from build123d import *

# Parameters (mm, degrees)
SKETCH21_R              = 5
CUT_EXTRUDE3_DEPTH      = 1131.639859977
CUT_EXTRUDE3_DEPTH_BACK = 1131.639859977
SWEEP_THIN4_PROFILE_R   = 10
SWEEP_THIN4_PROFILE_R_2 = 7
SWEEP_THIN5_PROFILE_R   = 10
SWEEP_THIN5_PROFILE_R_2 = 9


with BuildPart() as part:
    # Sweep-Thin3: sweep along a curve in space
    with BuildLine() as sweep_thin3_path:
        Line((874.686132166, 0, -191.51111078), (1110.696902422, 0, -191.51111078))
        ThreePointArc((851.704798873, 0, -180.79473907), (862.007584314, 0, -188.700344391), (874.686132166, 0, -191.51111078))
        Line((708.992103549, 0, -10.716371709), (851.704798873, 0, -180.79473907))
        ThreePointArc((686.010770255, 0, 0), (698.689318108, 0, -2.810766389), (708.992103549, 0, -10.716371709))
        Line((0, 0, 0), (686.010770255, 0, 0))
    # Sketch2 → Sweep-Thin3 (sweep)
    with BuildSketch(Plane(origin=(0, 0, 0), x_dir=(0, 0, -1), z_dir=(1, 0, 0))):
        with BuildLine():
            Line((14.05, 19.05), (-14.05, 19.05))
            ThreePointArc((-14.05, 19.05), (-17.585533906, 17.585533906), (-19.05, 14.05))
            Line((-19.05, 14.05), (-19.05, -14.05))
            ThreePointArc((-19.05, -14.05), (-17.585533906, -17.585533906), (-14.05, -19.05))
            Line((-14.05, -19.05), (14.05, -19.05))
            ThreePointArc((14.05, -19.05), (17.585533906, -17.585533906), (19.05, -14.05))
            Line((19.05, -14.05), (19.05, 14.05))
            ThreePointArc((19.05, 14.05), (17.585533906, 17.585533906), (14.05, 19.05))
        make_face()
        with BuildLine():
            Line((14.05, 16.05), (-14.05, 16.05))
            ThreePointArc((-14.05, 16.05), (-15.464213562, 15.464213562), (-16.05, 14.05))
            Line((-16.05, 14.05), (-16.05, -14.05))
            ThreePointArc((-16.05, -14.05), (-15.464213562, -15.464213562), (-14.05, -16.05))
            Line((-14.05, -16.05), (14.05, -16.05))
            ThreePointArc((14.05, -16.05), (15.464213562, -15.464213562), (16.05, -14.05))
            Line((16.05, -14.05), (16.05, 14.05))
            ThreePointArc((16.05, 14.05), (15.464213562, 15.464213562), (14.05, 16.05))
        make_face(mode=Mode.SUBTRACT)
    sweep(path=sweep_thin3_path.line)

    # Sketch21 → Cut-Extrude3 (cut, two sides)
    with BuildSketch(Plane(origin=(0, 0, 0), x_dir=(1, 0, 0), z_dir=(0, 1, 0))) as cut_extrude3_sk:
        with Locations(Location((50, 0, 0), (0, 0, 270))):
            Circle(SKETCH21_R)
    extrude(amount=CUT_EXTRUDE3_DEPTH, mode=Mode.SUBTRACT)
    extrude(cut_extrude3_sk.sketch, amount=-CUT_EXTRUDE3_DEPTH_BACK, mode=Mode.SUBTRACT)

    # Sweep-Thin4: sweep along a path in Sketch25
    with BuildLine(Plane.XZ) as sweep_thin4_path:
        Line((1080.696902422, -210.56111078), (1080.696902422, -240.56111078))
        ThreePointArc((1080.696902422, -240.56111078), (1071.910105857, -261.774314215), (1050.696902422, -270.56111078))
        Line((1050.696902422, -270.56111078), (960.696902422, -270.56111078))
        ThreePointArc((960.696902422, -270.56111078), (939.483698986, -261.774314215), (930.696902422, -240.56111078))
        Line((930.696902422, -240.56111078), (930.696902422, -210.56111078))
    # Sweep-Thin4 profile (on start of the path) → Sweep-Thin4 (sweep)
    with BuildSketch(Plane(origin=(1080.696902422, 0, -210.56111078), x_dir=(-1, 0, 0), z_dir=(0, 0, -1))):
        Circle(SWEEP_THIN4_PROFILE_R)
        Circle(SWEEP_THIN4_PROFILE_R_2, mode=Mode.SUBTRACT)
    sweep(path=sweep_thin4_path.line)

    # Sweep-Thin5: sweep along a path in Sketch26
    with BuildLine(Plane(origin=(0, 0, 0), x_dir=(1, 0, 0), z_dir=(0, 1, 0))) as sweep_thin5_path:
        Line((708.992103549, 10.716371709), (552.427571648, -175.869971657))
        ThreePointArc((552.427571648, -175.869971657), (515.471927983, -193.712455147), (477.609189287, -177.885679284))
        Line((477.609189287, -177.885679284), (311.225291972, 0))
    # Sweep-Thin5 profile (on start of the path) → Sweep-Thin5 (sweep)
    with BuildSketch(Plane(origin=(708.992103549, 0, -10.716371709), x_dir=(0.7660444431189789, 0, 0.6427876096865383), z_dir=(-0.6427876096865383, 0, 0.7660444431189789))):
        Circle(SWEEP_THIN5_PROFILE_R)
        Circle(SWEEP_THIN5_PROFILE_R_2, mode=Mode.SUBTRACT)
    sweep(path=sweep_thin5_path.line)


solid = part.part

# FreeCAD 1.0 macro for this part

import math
import FreeCAD as App
import Part
import Sketcher

V = App.Vector
Q = App.Units.Quantity

doc = App.newDocument("Part")
body = doc.addObject("PartDesign::Body", "Body")

# Sketch on YZ plane
sketch1 = doc.addObject("Sketcher::SketchObject", "Sketch")
body.addObject(sketch1)
sketch1.AttachmentSupport = (doc.YZ_Plane, [""])
sketch1.MapMode = "FlatFace"
sketch1.addGeometry(Part.LineSegment(V(19.1, -14.1, 0), V(19.1, 14.1, 0)), False)
sketch1.addGeometry(Part.ArcOfCircle(Part.Circle(V(14.1, 14.1, 0), V(0, 0, 1), 5), math.radians(0), math.radians(90)), False)
sketch1.addGeometry(Part.LineSegment(V(14.1, 19.1, 0), V(-14.1, 19.1, 0)), False)
sketch1.addGeometry(Part.ArcOfCircle(Part.Circle(V(-14.1, 14.1, 0), V(0, 0, 1), 5), math.radians(90), math.radians(180)), False)
sketch1.addGeometry(Part.LineSegment(V(-19.1, 14.1, 0), V(-19.1, -14.1, 0)), False)
sketch1.addGeometry(Part.ArcOfCircle(Part.Circle(V(-14.1, -14.1, 0), V(0, 0, 1), 5), math.radians(180), math.radians(270)), False)
sketch1.addGeometry(Part.LineSegment(V(-14.1, -19.1, 0), V(14.1, -19.1, 0)), False)
sketch1.addGeometry(Part.ArcOfCircle(Part.Circle(V(14.1, -14.1, 0), V(0, 0, 1), 5), math.radians(-90), math.radians(0)), False)
sketch1.addGeometry(Part.LineSegment(V(16.1, 14.1, 0), V(16.1, -14.1, 0)), False)
sketch1.addGeometry(Part.ArcOfCircle(Part.Circle(V(14, -14, 0), V(0, 0, 1), 2), math.radians(-90), math.radians(0)), False)
sketch1.addGeometry(Part.LineSegment(V(14.1, -16.1, 0), V(-14.1, -16.1, 0)), False)
sketch1.addGeometry(Part.ArcOfCircle(Part.Circle(V(-14, -14, 0), V(0, 0, 1), 2), math.radians(-180), math.radians(-90)), False)
sketch1.addGeometry(Part.LineSegment(V(-16.1, -14.1, 0), V(-16.1, 14.1, 0)), False)
sketch1.addGeometry(Part.ArcOfCircle(Part.Circle(V(-14, 14, 0), V(0, 0, 1), 2), math.radians(90), math.radians(180)), False)
sketch1.addGeometry(Part.LineSegment(V(-14.1, 16.1, 0), V(14.1, 16.1, 0)), False)
sketch1.addGeometry(Part.ArcOfCircle(Part.Circle(V(14, 14, 0), V(0, 0, 1), 2), math.radians(0), math.radians(90)), False)
sketch1.addConstraint(Sketcher.Constraint("Tangent", 0, 2, 1, 1))
sketch1.addConstraint(Sketcher.Constraint("Tangent", 1, 2, 2, 1))
sketch1.addConstraint(Sketcher.Constraint("Tangent", 2, 2, 3, 1))
sketch1.addConstraint(Sketcher.Constraint("Tangent", 3, 2, 4, 1))
sketch1.addConstraint(Sketcher.Constraint("Tangent", 4, 2, 5, 1))
sketch1.addConstraint(Sketcher.Constraint("Tangent", 5, 2, 6, 1))
sketch1.addConstraint(Sketcher.Constraint("Tangent", 6, 2, 7, 1))
sketch1.addConstraint(Sketcher.Constraint("Tangent", 7, 2, 0, 1))
sketch1.addConstraint(Sketcher.Constraint("Tangent", 8, 2, 9, 2))
sketch1.addConstraint(Sketcher.Constraint("Tangent", 9, 1, 10, 1))
sketch1.addConstraint(Sketcher.Constraint("Tangent", 10, 2, 11, 2))
sketch1.addConstraint(Sketcher.Constraint("Tangent", 11, 1, 12, 1))
sketch1.addConstraint(Sketcher.Constraint("Tangent", 12, 2, 13, 2))
sketch1.addConstraint(Sketcher.Constraint("Tangent", 13, 1, 14, 1))
sketch1.addConstraint(Sketcher.Constraint("Tangent", 14, 2, 15, 2))
sketch1.addConstraint(Sketcher.Constraint("Tangent", 15, 1, 8, 1))
sketch1.addConstraint(Sketcher.Constraint("Vertical", 0))
sketch1.addConstraint(Sketcher.Constraint("Horizontal", 2))
sketch1.addConstraint(Sketcher.Constraint("Vertical", 4))
sketch1.addConstraint(Sketcher.Constraint("Horizontal", 6))
sketch1.addConstraint(Sketcher.Constraint("Vertical", 8))
sketch1.addConstraint(Sketcher.Constraint("Horizontal", 10))
sketch1.addConstraint(Sketcher.Constraint("Vertical", 12))
sketch1.addConstraint(Sketcher.Constraint("Horizontal", 14))
sketch1.addConstraint(Sketcher.Constraint("Coincident", 9, 3, 7, 3))
sketch1.addConstraint(Sketcher.Constraint("Coincident", 11, 3, 5, 3))
sketch1.addConstraint(Sketcher.Constraint("Coincident", 13, 3, 3, 3))
sketch1.addConstraint(Sketcher.Constraint("Equal", 1, 3))
sketch1.addConstraint(Sketcher.Constraint("Equal", 3, 5))
sketch1.addConstraint(Sketcher.Constraint("Equal", 5, 7))
sketch1.addConstraint(Sketcher.Constraint("Equal", 13, 15))
sketch1.addConstraint(Sketcher.Constraint("Symmetric", 1, 3, 5, 3, -1, 1))
sketch1.addConstraint(Sketcher.Constraint("Equal", 14, 0))
sketch1.addConstraint(Sketcher.Constraint("Radius", 1, Q("5 mm")))
sketch1.addConstraint(Sketcher.Constraint("Radius", 9, Q("2 mm")))
sketch1.addConstraint(Sketcher.Constraint("DistanceX", 2, 2, 2, 1, Q("28.1 mm")))

# Sketch on XZ plane
sketch2 = doc.addObject("Sketcher::SketchObject", "Sketch001")
body.addObject(sketch2)
sketch2.AttachmentSupport = (doc.XZ_Plane, [""])
sketch2.MapMode = "FlatFace"
sketch2.addGeometry(Part.LineSegment(V(0, 0, 0), V(686, 0, 0)), False)
sketch2.addGeometry(Part.ArcOfCircle(Part.Circle(V(686, -30, 0), V(0, 0, 1), 30), math.radians(40), math.radians(90)), False)
sketch2.addGeometry(Part.LineSegment(V(709, -11, 0), V(852, -181, 0)), False)
sketch2.addGeometry(Part.ArcOfCircle(Part.Circle(V(875, -162, 0), V(0, 0, 1), 30), math.radians(-140), math.radians(-90)), False)
sketch2.addGeometry(Part.LineSegment(V(875, -192, 0), V(1111, -192, 0)), False)
sketch2.addConstraint(Sketcher.Constraint("Tangent", 0, 2, 1, 2))
sketch2.addConstraint(Sketcher.Constraint("Tangent", 1, 1, 2, 1))
sketch2.addConstraint(Sketcher.Constraint("Tangent", 2, 2, 3, 1))
sketch2.addConstraint(Sketcher.Constraint("Tangent", 3, 2, 4, 1))
sketch2.addConstraint(Sketcher.Constraint("Horizontal", 0))
sketch2.addConstraint(Sketcher.Constraint("Horizontal", 4))
sketch2.addConstraint(Sketcher.Constraint("Coincident", 0, 1, -1, 1))
sketch2.addConstraint(Sketcher.Constraint("Equal", 1, 3))
sketch2.addConstraint(Sketcher.Constraint("Radius", 1, Q("30 mm")))
sketch2.addConstraint(Sketcher.Constraint("Angle", 2, Q("-50 deg")))
sketch2.addConstraint(Sketcher.Constraint("DistanceX", 0, 1, 0, 2, Q("686.01077 mm")))
sketch2.addConstraint(Sketcher.Constraint("DistanceX", 4, 1, 4, 2, Q("236.01077 mm")))
sketch2.addConstraint(Sketcher.Constraint("DistanceX", -1, 1, 2, 2, Q("851.704799 mm")))
doc.recompute()

additivepipe = doc.addObject("PartDesign::AdditivePipe", "AdditivePipe")
body.addObject(additivepipe)
additivepipe.Profile = sketch1
additivepipe.Spine = (sketch2, ["Edge1", "Edge2", "Edge3", "Edge4", "Edge5"])

# Sketch on XZ plane
sketch3 = doc.addObject("Sketcher::SketchObject", "Sketch002")
body.addObject(sketch3)
sketch3.AttachmentSupport = (doc.XZ_Plane, [""])
sketch3.MapMode = "FlatFace"
sketch3.addGeometry(Part.Circle(V(50, 0, 0), V(0, 0, 1), 5), False)
sketch3.addConstraint(Sketcher.Constraint("PointOnObject", 0, 3, -1))
sketch3.addConstraint(Sketcher.Constraint("Diameter", 0, Q("10 mm")))
sketch3.addConstraint(Sketcher.Constraint("DistanceX", -1, 1, 0, 3, Q("50 mm")))
pocket1 = doc.addObject("PartDesign::Pocket", "Pocket")
body.addObject(pocket1)
pocket1.Profile = sketch3
pocket1.Type = "ThroughAll"
pocket1.Midplane = True

# Sketch on XY plane
sketch4 = doc.addObject("Sketcher::SketchObject", "Sketch003")
body.addObject(sketch4)
sketch4.AttachmentSupport = (doc.XY_Plane, [""])
sketch4.MapMode = "FlatFace"
sketch4.AttachmentOffset = App.Placement(V(0, 0, -210.561111), App.Rotation())
sketch4.addGeometry(Part.Circle(V(1081, 0, 0), V(0, 0, 1), 10), False)
sketch4.addGeometry(Part.Circle(V(1081, 0, 0), V(0, 0, 1), 7), False)
sketch4.addConstraint(Sketcher.Constraint("Coincident", 1, 3, 0, 3))
sketch4.addConstraint(Sketcher.Constraint("PointOnObject", 0, 3, -1))
sketch4.addConstraint(Sketcher.Constraint("Diameter", 0, Q("20 mm")))
sketch4.addConstraint(Sketcher.Constraint("Diameter", 1, Q("14 mm")))
sketch4.addConstraint(Sketcher.Constraint("DistanceX", -1, 1, 0, 3, Q("1080.696902 mm")))

# Sketch on XZ plane
sketch5 = doc.addObject("Sketcher::SketchObject", "Sketch004")
body.addObject(sketch5)
sketch5.AttachmentSupport = (doc.XZ_Plane, [""])
sketch5.MapMode = "FlatFace"
sketch5.addGeometry(Part.LineSegment(V(1081, -211, 0), V(1081, -241, 0)), False)
sketch5.addGeometry(Part.ArcOfCircle(Part.Circle(V(1051, -241, 0), V(0, 0, 1), 30), math.radians(-90), math.radians(0)), False)
sketch5.addGeometry(Part.LineSegment(V(1051, -271, 0), V(961, -271, 0)), False)
sketch5.addGeometry(Part.ArcOfCircle(Part.Circle(V(961, -241, 0), V(0, 0, 1), 30), math.radians(180), math.radians(270)), False)
sketch5.addGeometry(Part.LineSegment(V(931, -241, 0), V(931, -211, 0)), False)
sketch5.addConstraint(Sketcher.Constraint("Tangent", 0, 2, 1, 2))
sketch5.addConstraint(Sketcher.Constraint("Tangent", 1, 1, 2, 1))
sketch5.addConstraint(Sketcher.Constraint("Tangent", 2, 2, 3, 2))
sketch5.addConstraint(Sketcher.Constraint("Tangent", 3, 1, 4, 1))
sketch5.addConstraint(Sketcher.Constraint("Vertical", 0))
sketch5.addConstraint(Sketcher.Constraint("Horizontal", 2))
sketch5.addConstraint(Sketcher.Constraint("Vertical", 4))
sketch5.addConstraint(Sketcher.Constraint("Equal", 1, 3))
sketch5.addConstraint(Sketcher.Constraint("Horizontal", 0, 1, 4, 2))
sketch5.addConstraint(Sketcher.Constraint("Radius", 1, Q("30 mm")))
sketch5.addConstraint(Sketcher.Constraint("DistanceX", 2, 2, 2, 1, Q("90 mm")))
sketch5.addConstraint(Sketcher.Constraint("DistanceY", 0, 2, 0, 1, Q("30 mm")))
sketch5.addConstraint(Sketcher.Constraint("DistanceY", 1, 3, -1, 1, Q("240.561111 mm")))
sketch5.addConstraint(Sketcher.Constraint("DistanceX", -1, 1, 1, 3, Q("1050.696902 mm")))
doc.recompute()

additivepipe2 = doc.addObject("PartDesign::AdditivePipe", "AdditivePipe001")
body.addObject(additivepipe2)
additivepipe2.Profile = sketch4
additivepipe2.Spine = (sketch5, ["Edge1", "Edge2", "Edge3", "Edge4", "Edge5"])

# Sketch on an angled plane
sketch6 = doc.addObject("Sketcher::SketchObject", "Sketch005")
body.addObject(sketch6)
sketch6.Placement = App.Placement(V(708.992104, 0, -10.716372), App.Rotation(V(0.766044443, 0, 0.64278761), V(0, 1, 0), V(-0.64278761, 0, 0.766044443), "ZXY"))
sketch6.addGeometry(Part.Circle(V(0, 0, 0), V(0, 0, 1), 10), False)
sketch6.addGeometry(Part.Circle(V(0, 0, 0), V(0, 0, 1), 9), False)
sketch6.addConstraint(Sketcher.Constraint("Coincident", 0, 3, -1, 1))
sketch6.addConstraint(Sketcher.Constraint("Coincident", 1, 3, -1, 1))
sketch6.addConstraint(Sketcher.Constraint("Diameter", 0, Q("20 mm")))
sketch6.addConstraint(Sketcher.Constraint("Diameter", 1, Q("18 mm")))

# Sketch on XZ plane
sketch7 = doc.addObject("Sketcher::SketchObject", "Sketch006")
body.addObject(sketch7)
sketch7.AttachmentSupport = (doc.XZ_Plane, [""])
sketch7.MapMode = "FlatFace"
sketch7.addGeometry(Part.LineSegment(V(709, -11, 0), V(552, 176, 0)), False)
sketch7.addGeometry(Part.ArcOfCircle(Part.Circle(V(514, 144, 0), V(0, 0, 1), 50), math.radians(40), math.radians(137)), False)
sketch7.addGeometry(Part.LineSegment(V(478, 178, 0), V(311, 0, 0)), False)
sketch7.addConstraint(Sketcher.Constraint("Tangent", 0, 2, 1, 1))
sketch7.addConstraint(Sketcher.Constraint("Tangent", 1, 2, 2, 1))
sketch7.addConstraint(Sketcher.Constraint("PointOnObject", 2, 2, -1))
sketch7.addConstraint(Sketcher.Constraint("Equal", 0, 2))
sketch7.addConstraint(Sketcher.Constraint("Radius", 1, Q("50 mm")))
sketch7.addConstraint(Sketcher.Constraint("Angle", 0, Q("130 deg")))
sketch7.addConstraint(Sketcher.Constraint("DistanceX", -1, 1, 1, 3, Q("514.125349 mm")))
sketch7.addConstraint(Sketcher.Constraint("DistanceY", -1, 1, 1, 3, Q("143.730591 mm")))
sketch7.addConstraint(Sketcher.Constraint("DistanceY", 0, 1, -1, 1, Q("10.716372 mm")))
doc.recompute()

additivepipe3 = doc.addObject("PartDesign::AdditivePipe", "AdditivePipe002")
body.addObject(additivepipe3)
additivepipe3.Profile = sketch6
additivepipe3.Spine = (sketch7, ["Edge1", "Edge2", "Edge3"])

doc.recompute()
